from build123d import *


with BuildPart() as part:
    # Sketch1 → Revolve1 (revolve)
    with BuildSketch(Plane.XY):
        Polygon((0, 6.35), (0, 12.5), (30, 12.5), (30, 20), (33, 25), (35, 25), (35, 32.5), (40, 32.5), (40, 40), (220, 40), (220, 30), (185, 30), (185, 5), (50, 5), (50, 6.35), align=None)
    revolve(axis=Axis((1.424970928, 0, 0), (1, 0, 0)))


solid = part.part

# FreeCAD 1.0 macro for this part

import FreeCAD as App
import Part
import Sketcher
from FreeCAD import Vector

doc = App.newDocument("Part")
body = doc.addObject("PartDesign::Body", "Body")

sketch1 = doc.addObject("Sketcher::SketchObject", "Sketch")
body.addObject(sketch1)
sketch1.AttachmentSupport = (doc.XY_Plane, [""])
sketch1.MapMode = "FlatFace"
sketch1.addGeometry([
    Part.LineSegment(Vector(0, 12.5, 0), Vector(0, 6.3, 0)),
    Part.LineSegment(Vector(0, 6.3, 0), Vector(50, 6.3, 0)),
    Part.LineSegment(Vector(50, 6.3, 0), Vector(50, 5, 0)),
    Part.LineSegment(Vector(50, 5, 0), Vector(185, 5, 0)),
    Part.LineSegment(Vector(185, 5, 0), Vector(185, 30, 0)),
    Part.LineSegment(Vector(185, 30, 0), Vector(220, 30, 0)),
    Part.LineSegment(Vector(220, 30, 0), Vector(220, 40, 0)),
    Part.LineSegment(Vector(220, 40, 0), Vector(40, 40, 0)),
    Part.LineSegment(Vector(40, 40, 0), Vector(40, 32.5, 0)),
    Part.LineSegment(Vector(40, 32.5, 0), Vector(35, 32.5, 0)),
    Part.LineSegment(Vector(35, 32.5, 0), Vector(35, 25, 0)),
    Part.LineSegment(Vector(35, 25, 0), Vector(33, 25, 0)),
    Part.LineSegment(Vector(33, 25, 0), Vector(30, 20, 0)),
    Part.LineSegment(Vector(30, 20, 0), Vector(30, 12.5, 0)),
    Part.LineSegment(Vector(30, 12.5, 0), Vector(0, 12.5, 0)),
], False)
sketch1.addConstraint([
    Sketcher.Constraint("Coincident", 0, 2, 1, 1),
    Sketcher.Constraint("Coincident", 1, 2, 2, 1),
    Sketcher.Constraint("Coincident", 2, 2, 3, 1),
    Sketcher.Constraint("Coincident", 3, 2, 4, 1),
    Sketcher.Constraint("Coincident", 4, 2, 5, 1),
    Sketcher.Constraint("Coincident", 5, 2, 6, 1),
    Sketcher.Constraint("Coincident", 6, 2, 7, 1),
    Sketcher.Constraint("Coincident", 7, 2, 8, 1),
    Sketcher.Constraint("Coincident", 8, 2, 9, 1),
    Sketcher.Constraint("Coincident", 9, 2, 10, 1),
    Sketcher.Constraint("Coincident", 10, 2, 11, 1),
    Sketcher.Constraint("Coincident", 11, 2, 12, 1),
    Sketcher.Constraint("Coincident", 12, 2, 13, 1),
    Sketcher.Constraint("Coincident", 13, 2, 14, 1),
    Sketcher.Constraint("Coincident", 14, 2, 0, 1),
    Sketcher.Constraint("Vertical", 0),
    Sketcher.Constraint("Horizontal", 1),
    Sketcher.Constraint("Vertical", 2),
    Sketcher.Constraint("Horizontal", 3),
    Sketcher.Constraint("Vertical", 4),
    Sketcher.Constraint("Horizontal", 5),
    Sketcher.Constraint("Vertical", 6),
    Sketcher.Constraint("Horizontal", 7),
    Sketcher.Constraint("Vertical", 8),
    Sketcher.Constraint("Horizontal", 9),
    Sketcher.Constraint("Vertical", 10),
    Sketcher.Constraint("Horizontal", 11),
    Sketcher.Constraint("Vertical", 13),
    Sketcher.Constraint("Horizontal", 14),
    Sketcher.Constraint("PointOnObject", 0, 2, -2),
    Sketcher.Constraint("Equal", 8, 10),
    Sketcher.Constraint("Equal", 10, 13),
    Sketcher.Constraint("DistanceX", 1, 1, 1, 2, 50.0),
    Sketcher.Constraint("DistanceX", 3, 1, 3, 2, 135.0),
    Sketcher.Constraint("DistanceX", 5, 1, 5, 2, 35.0),
    Sketcher.Constraint("DistanceX", 7, 2, 7, 1, 180.0),
    Sketcher.Constraint("DistanceX", 9, 2, 9, 1, 5.0),
    Sketcher.Constraint("DistanceX", 11, 2, 11, 1, 2.0),
    Sketcher.Constraint("DistanceX", 14, 2, 14, 1, 30.0),
    Sketcher.Constraint("DistanceY", 4, 1, 4, 2, 25.0),
    Sketcher.Constraint("DistanceY", 6, 1, 6, 2, 10.0),
    Sketcher.Constraint("DistanceY", 8, 2, 8, 1, 7.5),
    Sketcher.Constraint("DistanceY", -1, 1, 2, 2, 5.0),
    Sketcher.Constraint("DistanceY", -1, 1, 12, 2, 20.0),
    Sketcher.Constraint("DistanceY", 0, 2, 0, 1, 6.15),
])
revolution = doc.addObject("PartDesign::Revolution", "Revolution")
body.addObject(revolution)
revolution.Profile = sketch1
revolution.ReferenceAxis = (sketch1, ["H_Axis"])
revolution.Angle = 360

doc.recompute()
